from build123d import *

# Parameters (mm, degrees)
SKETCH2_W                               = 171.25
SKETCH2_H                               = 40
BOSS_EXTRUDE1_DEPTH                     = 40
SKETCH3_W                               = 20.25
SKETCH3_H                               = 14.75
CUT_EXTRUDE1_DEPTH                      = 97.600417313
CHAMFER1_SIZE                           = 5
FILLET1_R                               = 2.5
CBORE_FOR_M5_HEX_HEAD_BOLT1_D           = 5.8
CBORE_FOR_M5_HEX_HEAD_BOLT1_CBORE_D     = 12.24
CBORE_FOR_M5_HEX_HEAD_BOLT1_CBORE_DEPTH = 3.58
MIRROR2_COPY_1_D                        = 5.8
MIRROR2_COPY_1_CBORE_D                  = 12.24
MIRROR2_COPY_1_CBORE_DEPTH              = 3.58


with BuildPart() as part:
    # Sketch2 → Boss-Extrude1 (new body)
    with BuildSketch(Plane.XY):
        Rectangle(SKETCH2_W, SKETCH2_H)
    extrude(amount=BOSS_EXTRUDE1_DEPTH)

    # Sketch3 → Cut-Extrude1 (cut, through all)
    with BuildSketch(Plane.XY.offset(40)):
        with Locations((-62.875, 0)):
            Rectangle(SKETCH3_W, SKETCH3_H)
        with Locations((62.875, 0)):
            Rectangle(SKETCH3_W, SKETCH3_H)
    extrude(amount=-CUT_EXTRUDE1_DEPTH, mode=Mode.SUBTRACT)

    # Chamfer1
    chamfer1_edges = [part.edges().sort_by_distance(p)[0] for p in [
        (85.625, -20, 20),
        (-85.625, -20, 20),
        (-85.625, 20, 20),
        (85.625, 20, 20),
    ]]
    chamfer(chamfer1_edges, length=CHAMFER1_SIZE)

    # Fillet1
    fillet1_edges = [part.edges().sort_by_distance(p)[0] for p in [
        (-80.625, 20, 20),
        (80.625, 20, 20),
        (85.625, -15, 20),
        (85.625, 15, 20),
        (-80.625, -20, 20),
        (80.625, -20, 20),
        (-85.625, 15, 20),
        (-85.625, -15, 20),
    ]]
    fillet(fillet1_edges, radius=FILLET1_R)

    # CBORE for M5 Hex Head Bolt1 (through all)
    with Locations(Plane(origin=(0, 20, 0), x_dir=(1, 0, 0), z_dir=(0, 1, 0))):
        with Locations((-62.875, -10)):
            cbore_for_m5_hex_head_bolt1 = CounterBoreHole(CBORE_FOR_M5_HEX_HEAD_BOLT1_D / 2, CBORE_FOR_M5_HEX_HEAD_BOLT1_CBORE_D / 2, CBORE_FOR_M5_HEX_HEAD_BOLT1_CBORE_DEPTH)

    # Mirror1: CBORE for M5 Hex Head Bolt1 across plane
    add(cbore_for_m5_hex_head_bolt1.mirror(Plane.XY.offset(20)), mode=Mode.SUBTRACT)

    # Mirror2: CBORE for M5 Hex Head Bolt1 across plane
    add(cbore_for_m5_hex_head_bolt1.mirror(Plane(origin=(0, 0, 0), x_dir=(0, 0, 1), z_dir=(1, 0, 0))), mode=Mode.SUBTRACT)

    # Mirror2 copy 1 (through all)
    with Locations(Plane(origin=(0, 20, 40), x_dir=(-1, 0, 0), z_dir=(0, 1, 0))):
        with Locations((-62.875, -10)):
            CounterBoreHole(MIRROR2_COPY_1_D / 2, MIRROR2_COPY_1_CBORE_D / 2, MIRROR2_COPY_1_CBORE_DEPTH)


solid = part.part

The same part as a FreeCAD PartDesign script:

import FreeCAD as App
import Part
import Sketcher
from FreeCAD import Vector
Q = App.Units.Quantity


def edges_at(feature, points):
    """Names of the edges that pass closest to the given points."""
    edges = feature.Shape.Edges
    near = lambda p: min(range(len(edges)), key=lambda i: edges[i].distToShape(Part.Vertex(*p))[0])
    return sorted({f"Edge{near(p) + 1}" for p in points})

doc = App.newDocument("Part")
body = doc.addObject("PartDesign::Body", "Body")

sketch1 = doc.addObject("Sketcher::SketchObject", "Sketch")
body.addObject(sketch1)
sketch1.AttachmentSupport = (doc.XY_Plane, [""])
sketch1.MapMode = "FlatFace"
sketch1.addGeometry(Part.LineSegment(Vector(-85.625, 20, 0), Vector(-85.625, -20, 0)), False)
sketch1.addGeometry(Part.LineSegment(Vector(-85.625, -20, 0), Vector(85.625, -20, 0)), False)
sketch1.addGeometry(Part.LineSegment(Vector(85.625, -20, 0), Vector(85.625, 20, 0)), False)
sketch1.addGeometry(Part.LineSegment(Vector(85.625, 20, 0), Vector(-85.625, 20, 0)), False)
sketch1.addConstraint(Sketcher.Constraint("Coincident", 0, 2, 1, 1))
sketch1.addConstraint(Sketcher.Constraint("Coincident", 1, 2, 2, 1))
sketch1.addConstraint(Sketcher.Constraint("Coincident", 2, 2, 3, 1))
sketch1.addConstraint(Sketcher.Constraint("Coincident", 3, 2, 0, 1))
sketch1.addConstraint(Sketcher.Constraint("Vertical", 0))
sketch1.addConstraint(Sketcher.Constraint("Horizontal", 1))
sketch1.addConstraint(Sketcher.Constraint("Vertical", 2))
sketch1.addConstraint(Sketcher.Constraint("Horizontal", 3))
sketch1.addConstraint(Sketcher.Constraint("Symmetric", 0, 2, 2, 2, -1, 1))
sketch1.addConstraint(Sketcher.Constraint("DistanceY", 0, 2, 0, 1, Q("40 mm")))
sketch1.addConstraint(Sketcher.Constraint("DistanceX", 1, 1, 1, 2, Q("171.25 mm")))
pad1 = doc.addObject("PartDesign::Pad", "Pad")
body.addObject(pad1)
pad1.Profile = sketch1
pad1.Length = 40

sketch2 = doc.addObject("Sketcher::SketchObject", "Sketch001")
body.addObject(sketch2)
sketch2.AttachmentSupport = (doc.XY_Plane, [""])
sketch2.MapMode = "FlatFace"
sketch2.AttachmentOffset = App.Placement(Vector(0, 0, 40), App.Rotation())
sketch2.addGeometry(Part.LineSegment(Vector(-73, 7.375, 0), Vector(-73, -7.375, 0)), False)
sketch2.addGeometry(Part.LineSegment(Vector(-73, -7.375, 0), Vector(-52.75, -7.375, 0)), False)
sketch2.addGeometry(Part.LineSegment(Vector(-52.75, -7.375, 0), Vector(-52.75, 7.375, 0)), False)
sketch2.addGeometry(Part.LineSegment(Vector(-52.75, 7.375, 0), Vector(-73, 7.375, 0)), False)
sketch2.addGeometry(Part.LineSegment(Vector(52.75, 7.375, 0), Vector(52.75, -7.375, 0)), False)
sketch2.addGeometry(Part.LineSegment(Vector(52.75, -7.375, 0), Vector(73, -7.375, 0)), False)
sketch2.addGeometry(Part.LineSegment(Vector(73, -7.375, 0), Vector(73, 7.375, 0)), False)
sketch2.addGeometry(Part.LineSegment(Vector(73, 7.375, 0), Vector(52.75, 7.375, 0)), False)
sketch2.addConstraint(Sketcher.Constraint("Coincident", 0, 2, 1, 1))
sketch2.addConstraint(Sketcher.Constraint("Coincident", 1, 2, 2, 1))
sketch2.addConstraint(Sketcher.Constraint("Coincident", 2, 2, 3, 1))
sketch2.addConstraint(Sketcher.Constraint("Coincident", 3, 2, 0, 1))
sketch2.addConstraint(Sketcher.Constraint("Coincident", 4, 2, 5, 1))
sketch2.addConstraint(Sketcher.Constraint("Coincident", 5, 2, 6, 1))
sketch2.addConstraint(Sketcher.Constraint("Coincident", 6, 2, 7, 1))
sketch2.addConstraint(Sketcher.Constraint("Coincident", 7, 2, 4, 1))
sketch2.addConstraint(Sketcher.Constraint("Vertical", 0))
sketch2.addConstraint(Sketcher.Constraint("Horizontal", 1))
sketch2.addConstraint(Sketcher.Constraint("Vertical", 2))
sketch2.addConstraint(Sketcher.Constraint("Horizontal", 3))
sketch2.addConstraint(Sketcher.Constraint("Vertical", 4))
sketch2.addConstraint(Sketcher.Constraint("Horizontal", 5))
sketch2.addConstraint(Sketcher.Constraint("Vertical", 6))
sketch2.addConstraint(Sketcher.Constraint("Horizontal", 7))
sketch2.addConstraint(Sketcher.Constraint("Symmetric", 2, 2, 4, 2, -1, 1))
sketch2.addConstraint(Sketcher.Constraint("Symmetric", 0, 2, 6, 2, -1, 1))
sketch2.addConstraint(Sketcher.Constraint("Horizontal", 1, 2, 4, 2))
sketch2.addConstraint(Sketcher.Constraint("DistanceX", 0, 2, -1, 1, Q("73 mm")))
sketch2.addConstraint(Sketcher.Constraint("DistanceX", 1, 1, 1, 2, Q("20.25 mm")))
sketch2.addConstraint(Sketcher.Constraint("DistanceY", 0, 2, 0, 1, Q("14.75 mm")))
pocket1 = doc.addObject("PartDesign::Pocket", "Pocket")
body.addObject(pocket1)
pocket1.Profile = sketch2
pocket1.Type = "ThroughAll"
doc.recompute()

chamfer = doc.addObject("PartDesign::Chamfer", "Chamfer")
body.addObject(chamfer)
chamfer.Base = (pocket1, edges_at(pocket1, [
    (85.625, -20, 20),
    (-85.625, -20, 20),
    (-85.625, 20, 20),
    (85.625, 20, 20),
]))
chamfer.Size = 5
doc.recompute()

fillet = doc.addObject("PartDesign::Fillet", "Fillet")
body.addObject(fillet)
fillet.Base = (chamfer, edges_at(chamfer, [
    (-80.625, 20, 20),
    (80.625, 20, 20),
    (85.625, -15, 20),
    (85.625, 15, 20),
    (-80.625, -20, 20),
    (80.625, -20, 20),
    (-85.625, 15, 20),
    (-85.625, -15, 20),
]))
fillet.Radius = 2.5

sketch3 = doc.addObject("Sketcher::SketchObject", "Sketch002")
body.addObject(sketch3)
sketch3.AttachmentSupport = (doc.XZ_Plane, [""])
sketch3.MapMode = "FlatFace"
sketch3.AttachmentOffset = App.Placement(Vector(0, 0, -20), App.Rotation())
sketch3.addGeometry(Part.Circle(Vector(-62.875, 10, 0), Vector(0, 0, 1), 2.9), False)
sketch3.addConstraint(Sketcher.Constraint("Diameter", 0, Q("5.8 mm")))
sketch3.addConstraint(Sketcher.Constraint("DistanceY", -1, 1, 0, 3, Q("10 mm")))
sketch3.addConstraint(Sketcher.Constraint("DistanceX", 0, 3, -1, 1, Q("62.875 mm")))
doc.recompute()
hole = doc.addObject("PartDesign::Hole", "Hole")
body.addObject(hole)
hole.Profile = sketch3
hole.ThreadType = "None"
hole.Diameter = 5.8
hole.DepthType = "ThroughAll"
hole.HoleCutType = "Counterbore"
hole.HoleCutDiameter = 12.24
hole.HoleCutDepth = 3.58
hole.Reversed = True
doc.recompute()

datumplane = doc.addObject("PartDesign::Plane", "DatumPlane")
body.addObject(datumplane)
datumplane.AttachmentSupport = (doc.XY_Plane, [""])
datumplane.MapMode = "FlatFace"
datumplane.AttachmentOffset = App.Placement(Vector(0, 0, 20), App.Rotation())
mirrored = doc.addObject("PartDesign::Mirrored", "Mirrored")
body.addObject(mirrored)
mirrored.Originals = [hole]
mirrored.MirrorPlane = (datumplane, [""])
body.Tip = mirrored
doc.recompute()

mirrored2 = doc.addObject("PartDesign::Mirrored", "Mirrored001")
body.addObject(mirrored2)
mirrored2.Originals = [hole]
mirrored2.MirrorPlane = (doc.YZ_Plane, [""])
body.Tip = mirrored2

sketch4 = doc.addObject("Sketcher::SketchObject", "Sketch003")
body.addObject(sketch4)
sketch4.AttachmentSupport = (doc.XZ_Plane, [""])
sketch4.MapMode = "FlatFace"
sketch4.AttachmentOffset = App.Placement(Vector(0, 0, -20), App.Rotation())
sketch4.addGeometry(Part.Circle(Vector(62.875, 30, 0), Vector(0, 0, 1), 2.9), False)
sketch4.addConstraint(Sketcher.Constraint("Diameter", 0, Q("5.8 mm")))
sketch4.addConstraint(Sketcher.Constraint("DistanceY", -1, 1, 0, 3, Q("30 mm")))
sketch4.addConstraint(Sketcher.Constraint("DistanceX", -1, 1, 0, 3, Q("62.875 mm")))
doc.recompute()
hole2 = doc.addObject("PartDesign::Hole", "Hole001")
body.addObject(hole2)
hole2.Profile = sketch4
hole2.ThreadType = "None"
hole2.Diameter = 5.8
hole2.DepthType = "ThroughAll"
hole2.HoleCutType = "Counterbore"
hole2.HoleCutDiameter = 12.24
hole2.HoleCutDepth = 3.58
hole2.Reversed = True

doc.recompute()
